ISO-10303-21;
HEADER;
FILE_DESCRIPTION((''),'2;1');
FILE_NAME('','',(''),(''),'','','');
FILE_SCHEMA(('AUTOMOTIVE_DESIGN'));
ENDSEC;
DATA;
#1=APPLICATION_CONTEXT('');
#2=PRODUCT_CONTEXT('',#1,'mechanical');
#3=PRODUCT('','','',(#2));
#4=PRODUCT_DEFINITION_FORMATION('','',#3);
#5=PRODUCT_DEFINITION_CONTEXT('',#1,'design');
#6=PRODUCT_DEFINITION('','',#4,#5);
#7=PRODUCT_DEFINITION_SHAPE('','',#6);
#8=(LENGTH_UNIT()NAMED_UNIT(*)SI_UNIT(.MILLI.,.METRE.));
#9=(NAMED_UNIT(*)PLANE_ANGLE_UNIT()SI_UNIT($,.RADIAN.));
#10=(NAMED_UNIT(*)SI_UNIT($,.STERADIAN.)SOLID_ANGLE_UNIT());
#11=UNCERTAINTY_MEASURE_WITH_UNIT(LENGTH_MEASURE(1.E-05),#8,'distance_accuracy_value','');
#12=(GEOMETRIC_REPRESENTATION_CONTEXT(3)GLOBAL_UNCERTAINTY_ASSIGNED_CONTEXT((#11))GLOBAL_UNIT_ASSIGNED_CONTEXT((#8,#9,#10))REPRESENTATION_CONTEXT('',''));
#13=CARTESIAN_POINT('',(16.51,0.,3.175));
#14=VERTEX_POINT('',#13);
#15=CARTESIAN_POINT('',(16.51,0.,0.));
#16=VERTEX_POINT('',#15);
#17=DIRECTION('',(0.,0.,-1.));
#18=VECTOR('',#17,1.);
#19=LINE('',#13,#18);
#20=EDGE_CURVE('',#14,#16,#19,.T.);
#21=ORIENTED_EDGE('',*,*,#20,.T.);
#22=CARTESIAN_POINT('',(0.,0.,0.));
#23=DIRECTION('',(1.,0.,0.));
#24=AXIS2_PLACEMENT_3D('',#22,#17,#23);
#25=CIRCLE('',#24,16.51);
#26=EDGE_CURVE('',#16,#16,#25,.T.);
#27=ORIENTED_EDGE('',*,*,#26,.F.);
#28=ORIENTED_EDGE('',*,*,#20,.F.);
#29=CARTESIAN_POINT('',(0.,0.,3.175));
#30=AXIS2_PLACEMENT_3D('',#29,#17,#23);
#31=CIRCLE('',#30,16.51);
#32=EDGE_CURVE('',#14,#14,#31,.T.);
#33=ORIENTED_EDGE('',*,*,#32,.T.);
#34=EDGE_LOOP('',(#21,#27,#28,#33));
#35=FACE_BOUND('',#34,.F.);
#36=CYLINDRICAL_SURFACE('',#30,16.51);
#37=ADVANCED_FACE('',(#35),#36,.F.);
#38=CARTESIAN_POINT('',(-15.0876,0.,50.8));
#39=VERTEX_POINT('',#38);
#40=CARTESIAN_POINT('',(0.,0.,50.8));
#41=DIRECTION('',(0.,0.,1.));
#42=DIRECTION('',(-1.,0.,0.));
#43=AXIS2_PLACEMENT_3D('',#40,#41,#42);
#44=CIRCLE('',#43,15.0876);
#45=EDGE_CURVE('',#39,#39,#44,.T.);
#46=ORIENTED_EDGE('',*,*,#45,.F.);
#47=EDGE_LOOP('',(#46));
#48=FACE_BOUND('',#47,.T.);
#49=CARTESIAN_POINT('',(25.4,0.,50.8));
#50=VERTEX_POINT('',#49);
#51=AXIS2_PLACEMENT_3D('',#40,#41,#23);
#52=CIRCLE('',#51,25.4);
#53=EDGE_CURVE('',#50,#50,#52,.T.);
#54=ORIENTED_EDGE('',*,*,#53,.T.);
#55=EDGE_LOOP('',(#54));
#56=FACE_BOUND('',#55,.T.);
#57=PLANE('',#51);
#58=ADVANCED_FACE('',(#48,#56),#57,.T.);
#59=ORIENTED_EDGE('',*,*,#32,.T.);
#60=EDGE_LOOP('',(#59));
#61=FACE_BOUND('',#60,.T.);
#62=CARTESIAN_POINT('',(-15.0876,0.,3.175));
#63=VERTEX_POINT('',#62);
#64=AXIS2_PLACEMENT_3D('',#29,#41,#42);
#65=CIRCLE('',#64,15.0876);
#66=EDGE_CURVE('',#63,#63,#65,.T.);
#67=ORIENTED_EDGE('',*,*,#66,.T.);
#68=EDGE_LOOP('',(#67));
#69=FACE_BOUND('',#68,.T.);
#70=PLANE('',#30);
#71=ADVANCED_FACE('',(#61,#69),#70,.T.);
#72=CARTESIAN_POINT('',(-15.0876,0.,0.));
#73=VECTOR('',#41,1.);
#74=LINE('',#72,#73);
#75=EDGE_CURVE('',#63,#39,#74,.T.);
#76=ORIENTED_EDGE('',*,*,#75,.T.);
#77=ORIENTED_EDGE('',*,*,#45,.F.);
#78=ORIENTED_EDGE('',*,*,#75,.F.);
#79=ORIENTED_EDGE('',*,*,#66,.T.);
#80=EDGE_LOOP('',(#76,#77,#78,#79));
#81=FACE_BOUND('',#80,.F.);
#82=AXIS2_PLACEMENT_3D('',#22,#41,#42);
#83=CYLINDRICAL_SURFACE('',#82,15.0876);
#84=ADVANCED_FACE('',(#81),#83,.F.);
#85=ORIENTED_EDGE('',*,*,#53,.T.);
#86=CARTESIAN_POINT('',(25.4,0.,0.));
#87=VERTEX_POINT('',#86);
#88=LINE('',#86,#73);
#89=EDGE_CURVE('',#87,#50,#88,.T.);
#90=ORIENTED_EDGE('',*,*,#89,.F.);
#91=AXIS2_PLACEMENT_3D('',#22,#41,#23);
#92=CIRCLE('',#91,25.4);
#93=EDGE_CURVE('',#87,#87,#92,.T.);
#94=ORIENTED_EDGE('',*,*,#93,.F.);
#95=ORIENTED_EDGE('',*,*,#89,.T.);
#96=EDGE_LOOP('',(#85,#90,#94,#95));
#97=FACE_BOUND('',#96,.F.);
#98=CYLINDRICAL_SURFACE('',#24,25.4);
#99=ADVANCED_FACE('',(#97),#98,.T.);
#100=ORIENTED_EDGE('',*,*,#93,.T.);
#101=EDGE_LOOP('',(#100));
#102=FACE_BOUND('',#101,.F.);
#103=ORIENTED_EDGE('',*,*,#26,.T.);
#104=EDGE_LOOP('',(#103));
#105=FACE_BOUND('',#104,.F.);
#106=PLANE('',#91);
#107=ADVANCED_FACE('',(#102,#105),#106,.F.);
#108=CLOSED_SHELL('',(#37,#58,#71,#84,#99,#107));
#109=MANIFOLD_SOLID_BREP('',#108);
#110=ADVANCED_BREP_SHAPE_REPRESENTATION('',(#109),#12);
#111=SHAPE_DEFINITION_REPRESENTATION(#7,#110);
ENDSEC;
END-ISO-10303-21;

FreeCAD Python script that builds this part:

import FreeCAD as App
import Part
import Sketcher
from FreeCAD import Vector
Q = App.Units.Quantity

doc = App.newDocument("Part")
body = doc.addObject("PartDesign::Body", "Body")

sketch1 = doc.addObject("Sketcher::SketchObject", "Sketch")
body.addObject(sketch1)
sketch1.AttachmentSupport = (doc.XY_Plane, [""])
sketch1.MapMode = "FlatFace"
sketch1.addGeometry(Part.Circle(Vector(0, 0, 0), Vector(0, 0, 1), 25.4), False)
sketch1.addConstraint(Sketcher.Constraint("Coincident", 0, 3, -1, 1))
sketch1.addConstraint(Sketcher.Constraint("Diameter", 0, Q("2 in")))
pad1 = doc.addObject("PartDesign::Pad", "Pad")
body.addObject(pad1)
pad1.Profile = sketch1
pad1.Length = Q("2 in")

sketch2 = doc.addObject("Sketcher::SketchObject", "Sketch001")
body.addObject(sketch2)
sketch2.AttachmentSupport = (doc.XY_Plane, [""])
sketch2.MapMode = "FlatFace"
sketch2.addGeometry(Part.Circle(Vector(0, 0, 0), Vector(0, 0, 1), 15.0876), False)
sketch2.addConstraint(Sketcher.Constraint("Coincident", 0, 3, -1, 1))
sketch2.addConstraint(Sketcher.Constraint("Diameter", 0, Q("1.188 in")))
doc.recompute()
hole = doc.addObject("PartDesign::Hole", "Hole")
body.addObject(hole)
hole.Profile = sketch2
hole.ThreadType = "None"
hole.Diameter = Q("1.188 in")
hole.DepthType = "ThroughAll"
hole.HoleCutType = "Counterbore"
hole.HoleCutDiameter = Q("1.3 in")
hole.HoleCutDepth = Q("0.125 in")
hole.Reversed = True

doc.recompute()
